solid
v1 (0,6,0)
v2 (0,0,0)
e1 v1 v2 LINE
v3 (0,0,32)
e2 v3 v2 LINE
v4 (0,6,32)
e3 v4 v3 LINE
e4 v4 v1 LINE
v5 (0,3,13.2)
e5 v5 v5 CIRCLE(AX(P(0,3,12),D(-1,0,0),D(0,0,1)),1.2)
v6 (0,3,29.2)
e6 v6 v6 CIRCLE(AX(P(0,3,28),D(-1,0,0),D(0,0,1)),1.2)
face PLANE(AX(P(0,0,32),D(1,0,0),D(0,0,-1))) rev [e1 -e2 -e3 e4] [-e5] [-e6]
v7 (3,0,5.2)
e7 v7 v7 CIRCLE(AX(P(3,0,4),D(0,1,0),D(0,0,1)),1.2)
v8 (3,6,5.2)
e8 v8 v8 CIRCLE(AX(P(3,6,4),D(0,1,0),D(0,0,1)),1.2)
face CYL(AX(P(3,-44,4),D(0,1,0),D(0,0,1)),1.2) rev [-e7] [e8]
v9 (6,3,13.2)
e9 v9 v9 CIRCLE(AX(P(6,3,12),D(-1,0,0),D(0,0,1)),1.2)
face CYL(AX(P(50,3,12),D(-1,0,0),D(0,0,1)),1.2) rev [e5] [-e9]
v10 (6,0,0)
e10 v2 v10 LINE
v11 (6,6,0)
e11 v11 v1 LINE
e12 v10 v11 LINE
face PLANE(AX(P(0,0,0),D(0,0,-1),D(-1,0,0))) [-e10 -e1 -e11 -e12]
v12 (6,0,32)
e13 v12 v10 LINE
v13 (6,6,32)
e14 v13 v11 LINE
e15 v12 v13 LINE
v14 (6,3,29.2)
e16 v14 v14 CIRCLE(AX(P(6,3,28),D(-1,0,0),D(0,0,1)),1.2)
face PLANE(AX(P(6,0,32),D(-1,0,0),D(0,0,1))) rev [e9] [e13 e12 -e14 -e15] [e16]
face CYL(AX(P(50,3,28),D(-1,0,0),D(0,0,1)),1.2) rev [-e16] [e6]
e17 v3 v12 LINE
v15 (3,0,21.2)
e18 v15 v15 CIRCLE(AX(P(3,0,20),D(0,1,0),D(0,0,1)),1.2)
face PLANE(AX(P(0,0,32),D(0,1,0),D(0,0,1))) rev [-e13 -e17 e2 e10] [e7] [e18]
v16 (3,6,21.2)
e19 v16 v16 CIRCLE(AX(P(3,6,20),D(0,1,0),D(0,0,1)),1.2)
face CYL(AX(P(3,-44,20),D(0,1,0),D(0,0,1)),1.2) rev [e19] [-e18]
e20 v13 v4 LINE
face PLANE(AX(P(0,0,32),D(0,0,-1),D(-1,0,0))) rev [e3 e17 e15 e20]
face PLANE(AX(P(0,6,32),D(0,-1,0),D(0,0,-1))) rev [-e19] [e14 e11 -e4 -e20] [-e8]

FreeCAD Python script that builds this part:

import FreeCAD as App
import Part
import Sketcher

V = App.Vector


def add_polygon(sketch, points):
    """Adds a closed chain of lines whose ends are joined by coincident constraints."""
    first, n = sketch.GeometryCount, len(points)
    for a, b in zip(points, points[1:] + points[:1]):
        sketch.addGeometry(Part.LineSegment(App.Vector(*a, 0), App.Vector(*b, 0)), False)
    for i in range(n):
        sketch.addConstraint(Sketcher.Constraint("Coincident", first + i, 2, first + (i + 1) % n, 1))

doc = App.newDocument("Part")
body = doc.addObject("PartDesign::Body", "Body")

# Sketch on XY plane
sketch1 = body.newObject("Sketcher::SketchObject", "Sketch")
sketch1.AttachmentSupport = (doc.getObject("XY_Plane"), [""])
sketch1.MapMode = "FlatFace"
add_polygon(sketch1, [(0, 6), (0, 0), (6, 0), (6, 6)])  # lines 0-3
sketch1.addConstraint([
    Sketcher.Constraint("Vertical", 0),
    Sketcher.Constraint("Horizontal", 1),
    Sketcher.Constraint("Vertical", 2),
    Sketcher.Constraint("Horizontal", 3),
    Sketcher.Constraint("Coincident", 0, 2, -1, 1),
    Sketcher.Constraint("Equal", 3, 0),
    Sketcher.Constraint("DistanceX", 1, 1, 1, 2, 6.0),
])
pad1 = body.newObject("PartDesign::Pad", "Pad")
pad1.Profile = sketch1
pad1.Length = 32

# Sketch on XZ plane
sketch2 = body.newObject("Sketcher::SketchObject", "Sketch001")
sketch2.AttachmentSupport = (doc.getObject("XZ_Plane"), [""])
sketch2.MapMode = "FlatFace"
sketch2.AttachmentOffset = App.Placement(V(0, 0, -6), App.Rotation())
sketch2.addGeometry([
    Part.Circle(V(3, 4, 0), V(0, 0, 1), 1.2),
    Part.Circle(V(3, 20, 0), V(0, 0, 1), 1.2),
], False)
sketch2.addConstraint([
    Sketcher.Constraint("Equal", 0, 1),
    Sketcher.Constraint("Vertical", 0, 3, 1, 3),
    Sketcher.Constraint("Diameter", 0, 2.4),
    Sketcher.Constraint("DistanceX", -1, 1, 0, 3, 3.0),
    Sketcher.Constraint("DistanceY", -1, 1, 0, 3, 4.0),
    Sketcher.Constraint("DistanceY", -1, 1, 1, 3, 20.0),
])
pocket1 = body.newObject("PartDesign::Pocket", "Pocket")
pocket1.Profile = sketch2
pocket1.Length = 50
pocket1.Reversed = True

# Sketch on YZ plane
sketch3 = body.newObject("Sketcher::SketchObject", "Sketch002")
sketch3.AttachmentSupport = (doc.getObject("YZ_Plane"), [""])
sketch3.MapMode = "FlatFace"
sketch3.addGeometry([
    Part.Circle(V(3, 28, 0), V(0, 0, 1), 1.2),
    Part.Circle(V(3, 12, 0), V(0, 0, 1), 1.2),
], False)
sketch3.addConstraint([
    Sketcher.Constraint("Equal", 0, 1),
    Sketcher.Constraint("Vertical", 0, 3, 1, 3),
    Sketcher.Constraint("Diameter", 0, 2.4),
    Sketcher.Constraint("DistanceX", -1, 1, 0, 3, 3.0),
    Sketcher.Constraint("DistanceY", -1, 1, 0, 3, 28.0),
    Sketcher.Constraint("DistanceY", -1, 1, 1, 3, 12.0),
])
pocket2 = body.newObject("PartDesign::Pocket", "Pocket001")
pocket2.Profile = sketch3
pocket2.Length = 50
pocket2.Reversed = True

doc.recompute()
